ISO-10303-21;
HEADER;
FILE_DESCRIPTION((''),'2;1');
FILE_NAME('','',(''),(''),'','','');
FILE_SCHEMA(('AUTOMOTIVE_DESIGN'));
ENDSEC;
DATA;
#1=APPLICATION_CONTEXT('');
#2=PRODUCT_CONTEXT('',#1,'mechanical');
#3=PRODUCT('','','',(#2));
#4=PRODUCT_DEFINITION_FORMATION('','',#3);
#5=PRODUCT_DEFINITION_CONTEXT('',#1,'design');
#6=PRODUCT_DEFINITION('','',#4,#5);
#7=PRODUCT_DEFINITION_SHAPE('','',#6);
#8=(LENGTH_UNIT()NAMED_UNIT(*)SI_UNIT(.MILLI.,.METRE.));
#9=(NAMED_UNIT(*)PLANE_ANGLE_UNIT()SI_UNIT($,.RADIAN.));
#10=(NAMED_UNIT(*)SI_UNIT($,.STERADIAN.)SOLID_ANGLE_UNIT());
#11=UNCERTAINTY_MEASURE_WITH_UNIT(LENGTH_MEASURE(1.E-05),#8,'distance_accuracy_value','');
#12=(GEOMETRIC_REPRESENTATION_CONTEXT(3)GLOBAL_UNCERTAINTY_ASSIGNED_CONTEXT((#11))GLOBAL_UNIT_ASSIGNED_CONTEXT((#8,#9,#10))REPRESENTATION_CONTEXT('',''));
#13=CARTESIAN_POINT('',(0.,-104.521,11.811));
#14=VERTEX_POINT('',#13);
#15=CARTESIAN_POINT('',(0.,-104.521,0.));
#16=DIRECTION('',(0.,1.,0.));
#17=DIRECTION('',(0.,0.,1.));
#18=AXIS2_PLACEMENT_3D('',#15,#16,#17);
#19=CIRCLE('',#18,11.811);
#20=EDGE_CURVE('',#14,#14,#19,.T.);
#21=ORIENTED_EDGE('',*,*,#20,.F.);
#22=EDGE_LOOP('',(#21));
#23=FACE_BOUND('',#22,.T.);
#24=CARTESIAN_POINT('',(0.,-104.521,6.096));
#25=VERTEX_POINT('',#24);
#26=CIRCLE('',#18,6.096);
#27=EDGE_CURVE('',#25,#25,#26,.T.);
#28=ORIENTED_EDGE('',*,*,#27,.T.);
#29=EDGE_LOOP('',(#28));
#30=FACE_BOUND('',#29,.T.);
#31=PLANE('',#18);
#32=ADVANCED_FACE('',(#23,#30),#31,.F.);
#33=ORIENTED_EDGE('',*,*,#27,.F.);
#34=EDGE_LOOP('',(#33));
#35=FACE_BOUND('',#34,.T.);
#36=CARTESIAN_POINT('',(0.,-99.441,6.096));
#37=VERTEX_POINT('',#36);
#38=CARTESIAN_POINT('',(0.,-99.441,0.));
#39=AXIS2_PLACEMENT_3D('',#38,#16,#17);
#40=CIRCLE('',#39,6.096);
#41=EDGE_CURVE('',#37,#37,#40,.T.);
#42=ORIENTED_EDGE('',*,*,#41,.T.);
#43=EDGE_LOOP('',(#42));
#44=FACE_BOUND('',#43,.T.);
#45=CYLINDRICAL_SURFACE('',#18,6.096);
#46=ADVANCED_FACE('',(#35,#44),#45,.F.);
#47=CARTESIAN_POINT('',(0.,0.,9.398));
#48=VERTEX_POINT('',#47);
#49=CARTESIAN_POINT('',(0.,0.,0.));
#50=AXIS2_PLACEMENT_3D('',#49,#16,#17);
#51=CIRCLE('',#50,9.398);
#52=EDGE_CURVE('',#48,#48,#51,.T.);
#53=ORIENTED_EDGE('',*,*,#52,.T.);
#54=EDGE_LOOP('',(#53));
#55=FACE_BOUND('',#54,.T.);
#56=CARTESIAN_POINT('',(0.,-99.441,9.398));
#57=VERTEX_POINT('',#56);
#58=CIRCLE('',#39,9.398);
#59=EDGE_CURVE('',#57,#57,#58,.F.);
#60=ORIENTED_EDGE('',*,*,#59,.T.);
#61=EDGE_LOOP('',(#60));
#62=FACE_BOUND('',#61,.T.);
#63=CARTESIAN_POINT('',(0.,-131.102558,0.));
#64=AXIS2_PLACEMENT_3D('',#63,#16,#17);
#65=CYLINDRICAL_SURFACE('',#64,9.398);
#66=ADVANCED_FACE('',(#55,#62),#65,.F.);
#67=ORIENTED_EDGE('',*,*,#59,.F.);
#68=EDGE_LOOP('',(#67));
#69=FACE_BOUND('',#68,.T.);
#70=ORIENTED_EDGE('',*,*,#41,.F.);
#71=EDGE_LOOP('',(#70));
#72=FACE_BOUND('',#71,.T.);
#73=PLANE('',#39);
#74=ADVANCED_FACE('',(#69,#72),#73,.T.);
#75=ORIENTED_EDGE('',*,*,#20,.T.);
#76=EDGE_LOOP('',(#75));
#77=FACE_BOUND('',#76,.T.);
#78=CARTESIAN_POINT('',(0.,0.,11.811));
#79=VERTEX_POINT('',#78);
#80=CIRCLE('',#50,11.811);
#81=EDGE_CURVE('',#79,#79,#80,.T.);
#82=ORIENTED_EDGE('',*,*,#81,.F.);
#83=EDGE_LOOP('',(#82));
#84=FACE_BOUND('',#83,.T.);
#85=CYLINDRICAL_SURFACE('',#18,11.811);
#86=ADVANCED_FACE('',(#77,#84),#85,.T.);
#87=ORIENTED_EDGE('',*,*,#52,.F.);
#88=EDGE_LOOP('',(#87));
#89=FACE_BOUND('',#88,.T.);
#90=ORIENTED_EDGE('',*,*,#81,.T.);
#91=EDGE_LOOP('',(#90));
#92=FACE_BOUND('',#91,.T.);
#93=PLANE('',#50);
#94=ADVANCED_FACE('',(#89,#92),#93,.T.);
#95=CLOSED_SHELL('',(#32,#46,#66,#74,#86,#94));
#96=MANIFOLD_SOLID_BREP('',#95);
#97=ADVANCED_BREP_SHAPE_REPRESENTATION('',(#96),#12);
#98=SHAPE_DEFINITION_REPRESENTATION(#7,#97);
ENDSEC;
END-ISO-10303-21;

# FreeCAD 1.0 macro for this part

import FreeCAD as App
import Part
import Sketcher
Q = App.Units.Quantity

doc = App.newDocument("Part")
body = doc.addObject("PartDesign::Body", "Body")

sketch1 = body.newObject("Sketcher::SketchObject", "Sketch")
sketch1.AttachmentSupport = (doc.getObject("XZ_Plane"), [""])
sketch1.MapMode = "FlatFace"
sketch1.addGeometry(Part.Circle(App.Vector(0, 0, 0), App.Vector(0, 0, 1), 12), False)
sketch1.addConstraint([
    Sketcher.Constraint("Coincident", 0, 3, -1, 1),
    Sketcher.Constraint("Diameter", 0, Q("0.93 in")),
])
pad1 = body.newObject("PartDesign::Pad", "Pad")
pad1.Profile = sketch1
pad1.Length = Q("4.115 in")

sketch2 = body.newObject("Sketcher::SketchObject", "Sketch001")
sketch2.AttachmentSupport = (doc.getObject("XZ_Plane"), [""])
sketch2.MapMode = "FlatFace"
sketch2.addGeometry(Part.Circle(App.Vector(0, 0, 0), App.Vector(0, 0, 1), 9), False)
sketch2.addConstraint([
    Sketcher.Constraint("Coincident", 0, 3, -1, 1),
    Sketcher.Constraint("Diameter", 0, Q("0.74 in")),
])
pocket1 = body.newObject("PartDesign::Pocket", "Pocket")
pocket1.Profile = sketch2
pocket1.Length = Q("3.915 in")
pocket1.Reversed = True

sketch3 = body.newObject("Sketcher::SketchObject", "Sketch002")
sketch3.AttachmentSupport = (doc.getObject("XZ_Plane"), [""])
sketch3.MapMode = "FlatFace"
sketch3.addGeometry(Part.Circle(App.Vector(0, 0, 0), App.Vector(0, 0, 1), 6), False)
sketch3.addConstraint([
    Sketcher.Constraint("Coincident", 0, 3, -1, 1),
    Sketcher.Constraint("Diameter", 0, Q("0.48 in")),
])
pocket2 = body.newObject("PartDesign::Pocket", "Pocket001")
pocket2.Profile = sketch3
pocket2.Type = "ThroughAll"
pocket2.Reversed = True

doc.recompute()
